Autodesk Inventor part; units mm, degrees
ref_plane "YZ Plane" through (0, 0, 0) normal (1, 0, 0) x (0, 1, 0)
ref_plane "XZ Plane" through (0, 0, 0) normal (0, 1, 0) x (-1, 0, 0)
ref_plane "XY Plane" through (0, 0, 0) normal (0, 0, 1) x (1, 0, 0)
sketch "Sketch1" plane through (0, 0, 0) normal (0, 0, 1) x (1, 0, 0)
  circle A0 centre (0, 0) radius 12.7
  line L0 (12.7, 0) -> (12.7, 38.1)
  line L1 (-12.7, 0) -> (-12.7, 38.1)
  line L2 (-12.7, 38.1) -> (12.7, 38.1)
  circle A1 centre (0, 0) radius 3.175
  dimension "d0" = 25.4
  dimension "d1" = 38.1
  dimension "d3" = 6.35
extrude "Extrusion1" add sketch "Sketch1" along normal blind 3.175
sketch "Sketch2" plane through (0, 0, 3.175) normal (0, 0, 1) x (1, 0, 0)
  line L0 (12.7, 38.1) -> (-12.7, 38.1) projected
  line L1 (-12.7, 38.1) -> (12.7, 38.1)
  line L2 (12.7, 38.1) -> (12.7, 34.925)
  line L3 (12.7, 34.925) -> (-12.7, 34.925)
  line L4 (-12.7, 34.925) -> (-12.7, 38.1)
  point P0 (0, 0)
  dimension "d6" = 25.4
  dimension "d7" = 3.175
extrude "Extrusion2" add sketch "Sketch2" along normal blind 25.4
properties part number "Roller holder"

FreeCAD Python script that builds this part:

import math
import FreeCAD as App
import Part
import Sketcher

V = App.Vector
Q = App.Units.Quantity


def add_polygon(sketch, points):
    """Adds a closed chain of lines whose ends are joined by coincident constraints."""
    first, n = sketch.GeometryCount, len(points)
    for a, b in zip(points, points[1:] + points[:1]):
        sketch.addGeometry(Part.LineSegment(App.Vector(*a, 0), App.Vector(*b, 0)), False)
    for i in range(n):
        sketch.addConstraint(Sketcher.Constraint("Coincident", first + i, 2, first + (i + 1) % n, 1))

doc = App.newDocument("Part")
body = doc.addObject("PartDesign::Body", "Body")

# Sketch on XY plane
sketch1 = body.newObject("Sketcher::SketchObject", "Sketch")
sketch1.AttachmentSupport = (doc.getObject("XY_Plane"), [""])
sketch1.MapMode = "FlatFace"
sketch1.addGeometry(Part.ArcOfCircle(Part.Circle(V(0, 0, 0), V(0, 0, 1), 12.7), math.radians(180), math.radians(360)), False)
sketch1.addGeometry(Part.LineSegment(V(12.7, 0, 0), V(12.7, 38.1, 0)), False)
sketch1.addGeometry(Part.LineSegment(V(12.7, 38.1, 0), V(-12.7, 38.1, 0)), False)
sketch1.addGeometry(Part.LineSegment(V(-12.7, 38.1, 0), V(-12.7, 0, 0)), False)
sketch1.addGeometry(Part.Circle(V(0, 0, 0), V(0, 0, 1), 3.2), False)
sketch1.addConstraint(Sketcher.Constraint("Tangent", 0, 2, 1, 1))
sketch1.addConstraint(Sketcher.Constraint("Coincident", 1, 2, 2, 1))
sketch1.addConstraint(Sketcher.Constraint("Coincident", 2, 2, 3, 1))
sketch1.addConstraint(Sketcher.Constraint("Tangent", 3, 2, 0, 1))
sketch1.addConstraint(Sketcher.Constraint("Vertical", 1))
sketch1.addConstraint(Sketcher.Constraint("Horizontal", 2))
sketch1.addConstraint(Sketcher.Constraint("Vertical", 3))
sketch1.addConstraint(Sketcher.Constraint("Coincident", 0, 3, -1, 1))
sketch1.addConstraint(Sketcher.Constraint("Coincident", 4, 3, -1, 1))
sketch1.addConstraint(Sketcher.Constraint("Radius", 0, Q("0.5 in")))
sketch1.addConstraint(Sketcher.Constraint("Diameter", 4, Q("0.25 in")))
sketch1.addConstraint(Sketcher.Constraint("DistanceY", 1, 1, 1, 2, Q("1.5 in")))
pad1 = body.newObject("PartDesign::Pad", "Pad")
pad1.Profile = sketch1
pad1.Length = Q("0.125 in")

# Sketch on XY plane
sketch2 = body.newObject("Sketcher::SketchObject", "Sketch001")
sketch2.AttachmentSupport = (doc.getObject("XY_Plane"), [""])
sketch2.MapMode = "FlatFace"
sketch2.AttachmentOffset = App.Placement(V(0, 0, 0.125 * 25.4), App.Rotation())
add_polygon(sketch2, [(12.7, 34.9), (12.7, 38.1), (-12.7, 38.1), (-12.7, 34.9)])  # lines 0-3
sketch2.addConstraint(Sketcher.Constraint("Vertical", 0))
sketch2.addConstraint(Sketcher.Constraint("Horizontal", 1))
sketch2.addConstraint(Sketcher.Constraint("Vertical", 2))
sketch2.addConstraint(Sketcher.Constraint("Horizontal", 3))
sketch2.addConstraint(Sketcher.Constraint("DistanceX", 1, 2, 1, 1, Q("1 in")))
sketch2.addConstraint(Sketcher.Constraint("DistanceY", 0, 1, 0, 2, Q("0.125 in")))
sketch2.addConstraint(Sketcher.Constraint("DistanceX", -1, 1, 0, 2, Q("0.5 in")))
sketch2.addConstraint(Sketcher.Constraint("DistanceY", -1, 1, 0, 2, Q("1.5 in")))
pad2 = body.newObject("PartDesign::Pad", "Pad001")
pad2.Profile = sketch2
pad2.Length = Q("1 in")

doc.recompute()
